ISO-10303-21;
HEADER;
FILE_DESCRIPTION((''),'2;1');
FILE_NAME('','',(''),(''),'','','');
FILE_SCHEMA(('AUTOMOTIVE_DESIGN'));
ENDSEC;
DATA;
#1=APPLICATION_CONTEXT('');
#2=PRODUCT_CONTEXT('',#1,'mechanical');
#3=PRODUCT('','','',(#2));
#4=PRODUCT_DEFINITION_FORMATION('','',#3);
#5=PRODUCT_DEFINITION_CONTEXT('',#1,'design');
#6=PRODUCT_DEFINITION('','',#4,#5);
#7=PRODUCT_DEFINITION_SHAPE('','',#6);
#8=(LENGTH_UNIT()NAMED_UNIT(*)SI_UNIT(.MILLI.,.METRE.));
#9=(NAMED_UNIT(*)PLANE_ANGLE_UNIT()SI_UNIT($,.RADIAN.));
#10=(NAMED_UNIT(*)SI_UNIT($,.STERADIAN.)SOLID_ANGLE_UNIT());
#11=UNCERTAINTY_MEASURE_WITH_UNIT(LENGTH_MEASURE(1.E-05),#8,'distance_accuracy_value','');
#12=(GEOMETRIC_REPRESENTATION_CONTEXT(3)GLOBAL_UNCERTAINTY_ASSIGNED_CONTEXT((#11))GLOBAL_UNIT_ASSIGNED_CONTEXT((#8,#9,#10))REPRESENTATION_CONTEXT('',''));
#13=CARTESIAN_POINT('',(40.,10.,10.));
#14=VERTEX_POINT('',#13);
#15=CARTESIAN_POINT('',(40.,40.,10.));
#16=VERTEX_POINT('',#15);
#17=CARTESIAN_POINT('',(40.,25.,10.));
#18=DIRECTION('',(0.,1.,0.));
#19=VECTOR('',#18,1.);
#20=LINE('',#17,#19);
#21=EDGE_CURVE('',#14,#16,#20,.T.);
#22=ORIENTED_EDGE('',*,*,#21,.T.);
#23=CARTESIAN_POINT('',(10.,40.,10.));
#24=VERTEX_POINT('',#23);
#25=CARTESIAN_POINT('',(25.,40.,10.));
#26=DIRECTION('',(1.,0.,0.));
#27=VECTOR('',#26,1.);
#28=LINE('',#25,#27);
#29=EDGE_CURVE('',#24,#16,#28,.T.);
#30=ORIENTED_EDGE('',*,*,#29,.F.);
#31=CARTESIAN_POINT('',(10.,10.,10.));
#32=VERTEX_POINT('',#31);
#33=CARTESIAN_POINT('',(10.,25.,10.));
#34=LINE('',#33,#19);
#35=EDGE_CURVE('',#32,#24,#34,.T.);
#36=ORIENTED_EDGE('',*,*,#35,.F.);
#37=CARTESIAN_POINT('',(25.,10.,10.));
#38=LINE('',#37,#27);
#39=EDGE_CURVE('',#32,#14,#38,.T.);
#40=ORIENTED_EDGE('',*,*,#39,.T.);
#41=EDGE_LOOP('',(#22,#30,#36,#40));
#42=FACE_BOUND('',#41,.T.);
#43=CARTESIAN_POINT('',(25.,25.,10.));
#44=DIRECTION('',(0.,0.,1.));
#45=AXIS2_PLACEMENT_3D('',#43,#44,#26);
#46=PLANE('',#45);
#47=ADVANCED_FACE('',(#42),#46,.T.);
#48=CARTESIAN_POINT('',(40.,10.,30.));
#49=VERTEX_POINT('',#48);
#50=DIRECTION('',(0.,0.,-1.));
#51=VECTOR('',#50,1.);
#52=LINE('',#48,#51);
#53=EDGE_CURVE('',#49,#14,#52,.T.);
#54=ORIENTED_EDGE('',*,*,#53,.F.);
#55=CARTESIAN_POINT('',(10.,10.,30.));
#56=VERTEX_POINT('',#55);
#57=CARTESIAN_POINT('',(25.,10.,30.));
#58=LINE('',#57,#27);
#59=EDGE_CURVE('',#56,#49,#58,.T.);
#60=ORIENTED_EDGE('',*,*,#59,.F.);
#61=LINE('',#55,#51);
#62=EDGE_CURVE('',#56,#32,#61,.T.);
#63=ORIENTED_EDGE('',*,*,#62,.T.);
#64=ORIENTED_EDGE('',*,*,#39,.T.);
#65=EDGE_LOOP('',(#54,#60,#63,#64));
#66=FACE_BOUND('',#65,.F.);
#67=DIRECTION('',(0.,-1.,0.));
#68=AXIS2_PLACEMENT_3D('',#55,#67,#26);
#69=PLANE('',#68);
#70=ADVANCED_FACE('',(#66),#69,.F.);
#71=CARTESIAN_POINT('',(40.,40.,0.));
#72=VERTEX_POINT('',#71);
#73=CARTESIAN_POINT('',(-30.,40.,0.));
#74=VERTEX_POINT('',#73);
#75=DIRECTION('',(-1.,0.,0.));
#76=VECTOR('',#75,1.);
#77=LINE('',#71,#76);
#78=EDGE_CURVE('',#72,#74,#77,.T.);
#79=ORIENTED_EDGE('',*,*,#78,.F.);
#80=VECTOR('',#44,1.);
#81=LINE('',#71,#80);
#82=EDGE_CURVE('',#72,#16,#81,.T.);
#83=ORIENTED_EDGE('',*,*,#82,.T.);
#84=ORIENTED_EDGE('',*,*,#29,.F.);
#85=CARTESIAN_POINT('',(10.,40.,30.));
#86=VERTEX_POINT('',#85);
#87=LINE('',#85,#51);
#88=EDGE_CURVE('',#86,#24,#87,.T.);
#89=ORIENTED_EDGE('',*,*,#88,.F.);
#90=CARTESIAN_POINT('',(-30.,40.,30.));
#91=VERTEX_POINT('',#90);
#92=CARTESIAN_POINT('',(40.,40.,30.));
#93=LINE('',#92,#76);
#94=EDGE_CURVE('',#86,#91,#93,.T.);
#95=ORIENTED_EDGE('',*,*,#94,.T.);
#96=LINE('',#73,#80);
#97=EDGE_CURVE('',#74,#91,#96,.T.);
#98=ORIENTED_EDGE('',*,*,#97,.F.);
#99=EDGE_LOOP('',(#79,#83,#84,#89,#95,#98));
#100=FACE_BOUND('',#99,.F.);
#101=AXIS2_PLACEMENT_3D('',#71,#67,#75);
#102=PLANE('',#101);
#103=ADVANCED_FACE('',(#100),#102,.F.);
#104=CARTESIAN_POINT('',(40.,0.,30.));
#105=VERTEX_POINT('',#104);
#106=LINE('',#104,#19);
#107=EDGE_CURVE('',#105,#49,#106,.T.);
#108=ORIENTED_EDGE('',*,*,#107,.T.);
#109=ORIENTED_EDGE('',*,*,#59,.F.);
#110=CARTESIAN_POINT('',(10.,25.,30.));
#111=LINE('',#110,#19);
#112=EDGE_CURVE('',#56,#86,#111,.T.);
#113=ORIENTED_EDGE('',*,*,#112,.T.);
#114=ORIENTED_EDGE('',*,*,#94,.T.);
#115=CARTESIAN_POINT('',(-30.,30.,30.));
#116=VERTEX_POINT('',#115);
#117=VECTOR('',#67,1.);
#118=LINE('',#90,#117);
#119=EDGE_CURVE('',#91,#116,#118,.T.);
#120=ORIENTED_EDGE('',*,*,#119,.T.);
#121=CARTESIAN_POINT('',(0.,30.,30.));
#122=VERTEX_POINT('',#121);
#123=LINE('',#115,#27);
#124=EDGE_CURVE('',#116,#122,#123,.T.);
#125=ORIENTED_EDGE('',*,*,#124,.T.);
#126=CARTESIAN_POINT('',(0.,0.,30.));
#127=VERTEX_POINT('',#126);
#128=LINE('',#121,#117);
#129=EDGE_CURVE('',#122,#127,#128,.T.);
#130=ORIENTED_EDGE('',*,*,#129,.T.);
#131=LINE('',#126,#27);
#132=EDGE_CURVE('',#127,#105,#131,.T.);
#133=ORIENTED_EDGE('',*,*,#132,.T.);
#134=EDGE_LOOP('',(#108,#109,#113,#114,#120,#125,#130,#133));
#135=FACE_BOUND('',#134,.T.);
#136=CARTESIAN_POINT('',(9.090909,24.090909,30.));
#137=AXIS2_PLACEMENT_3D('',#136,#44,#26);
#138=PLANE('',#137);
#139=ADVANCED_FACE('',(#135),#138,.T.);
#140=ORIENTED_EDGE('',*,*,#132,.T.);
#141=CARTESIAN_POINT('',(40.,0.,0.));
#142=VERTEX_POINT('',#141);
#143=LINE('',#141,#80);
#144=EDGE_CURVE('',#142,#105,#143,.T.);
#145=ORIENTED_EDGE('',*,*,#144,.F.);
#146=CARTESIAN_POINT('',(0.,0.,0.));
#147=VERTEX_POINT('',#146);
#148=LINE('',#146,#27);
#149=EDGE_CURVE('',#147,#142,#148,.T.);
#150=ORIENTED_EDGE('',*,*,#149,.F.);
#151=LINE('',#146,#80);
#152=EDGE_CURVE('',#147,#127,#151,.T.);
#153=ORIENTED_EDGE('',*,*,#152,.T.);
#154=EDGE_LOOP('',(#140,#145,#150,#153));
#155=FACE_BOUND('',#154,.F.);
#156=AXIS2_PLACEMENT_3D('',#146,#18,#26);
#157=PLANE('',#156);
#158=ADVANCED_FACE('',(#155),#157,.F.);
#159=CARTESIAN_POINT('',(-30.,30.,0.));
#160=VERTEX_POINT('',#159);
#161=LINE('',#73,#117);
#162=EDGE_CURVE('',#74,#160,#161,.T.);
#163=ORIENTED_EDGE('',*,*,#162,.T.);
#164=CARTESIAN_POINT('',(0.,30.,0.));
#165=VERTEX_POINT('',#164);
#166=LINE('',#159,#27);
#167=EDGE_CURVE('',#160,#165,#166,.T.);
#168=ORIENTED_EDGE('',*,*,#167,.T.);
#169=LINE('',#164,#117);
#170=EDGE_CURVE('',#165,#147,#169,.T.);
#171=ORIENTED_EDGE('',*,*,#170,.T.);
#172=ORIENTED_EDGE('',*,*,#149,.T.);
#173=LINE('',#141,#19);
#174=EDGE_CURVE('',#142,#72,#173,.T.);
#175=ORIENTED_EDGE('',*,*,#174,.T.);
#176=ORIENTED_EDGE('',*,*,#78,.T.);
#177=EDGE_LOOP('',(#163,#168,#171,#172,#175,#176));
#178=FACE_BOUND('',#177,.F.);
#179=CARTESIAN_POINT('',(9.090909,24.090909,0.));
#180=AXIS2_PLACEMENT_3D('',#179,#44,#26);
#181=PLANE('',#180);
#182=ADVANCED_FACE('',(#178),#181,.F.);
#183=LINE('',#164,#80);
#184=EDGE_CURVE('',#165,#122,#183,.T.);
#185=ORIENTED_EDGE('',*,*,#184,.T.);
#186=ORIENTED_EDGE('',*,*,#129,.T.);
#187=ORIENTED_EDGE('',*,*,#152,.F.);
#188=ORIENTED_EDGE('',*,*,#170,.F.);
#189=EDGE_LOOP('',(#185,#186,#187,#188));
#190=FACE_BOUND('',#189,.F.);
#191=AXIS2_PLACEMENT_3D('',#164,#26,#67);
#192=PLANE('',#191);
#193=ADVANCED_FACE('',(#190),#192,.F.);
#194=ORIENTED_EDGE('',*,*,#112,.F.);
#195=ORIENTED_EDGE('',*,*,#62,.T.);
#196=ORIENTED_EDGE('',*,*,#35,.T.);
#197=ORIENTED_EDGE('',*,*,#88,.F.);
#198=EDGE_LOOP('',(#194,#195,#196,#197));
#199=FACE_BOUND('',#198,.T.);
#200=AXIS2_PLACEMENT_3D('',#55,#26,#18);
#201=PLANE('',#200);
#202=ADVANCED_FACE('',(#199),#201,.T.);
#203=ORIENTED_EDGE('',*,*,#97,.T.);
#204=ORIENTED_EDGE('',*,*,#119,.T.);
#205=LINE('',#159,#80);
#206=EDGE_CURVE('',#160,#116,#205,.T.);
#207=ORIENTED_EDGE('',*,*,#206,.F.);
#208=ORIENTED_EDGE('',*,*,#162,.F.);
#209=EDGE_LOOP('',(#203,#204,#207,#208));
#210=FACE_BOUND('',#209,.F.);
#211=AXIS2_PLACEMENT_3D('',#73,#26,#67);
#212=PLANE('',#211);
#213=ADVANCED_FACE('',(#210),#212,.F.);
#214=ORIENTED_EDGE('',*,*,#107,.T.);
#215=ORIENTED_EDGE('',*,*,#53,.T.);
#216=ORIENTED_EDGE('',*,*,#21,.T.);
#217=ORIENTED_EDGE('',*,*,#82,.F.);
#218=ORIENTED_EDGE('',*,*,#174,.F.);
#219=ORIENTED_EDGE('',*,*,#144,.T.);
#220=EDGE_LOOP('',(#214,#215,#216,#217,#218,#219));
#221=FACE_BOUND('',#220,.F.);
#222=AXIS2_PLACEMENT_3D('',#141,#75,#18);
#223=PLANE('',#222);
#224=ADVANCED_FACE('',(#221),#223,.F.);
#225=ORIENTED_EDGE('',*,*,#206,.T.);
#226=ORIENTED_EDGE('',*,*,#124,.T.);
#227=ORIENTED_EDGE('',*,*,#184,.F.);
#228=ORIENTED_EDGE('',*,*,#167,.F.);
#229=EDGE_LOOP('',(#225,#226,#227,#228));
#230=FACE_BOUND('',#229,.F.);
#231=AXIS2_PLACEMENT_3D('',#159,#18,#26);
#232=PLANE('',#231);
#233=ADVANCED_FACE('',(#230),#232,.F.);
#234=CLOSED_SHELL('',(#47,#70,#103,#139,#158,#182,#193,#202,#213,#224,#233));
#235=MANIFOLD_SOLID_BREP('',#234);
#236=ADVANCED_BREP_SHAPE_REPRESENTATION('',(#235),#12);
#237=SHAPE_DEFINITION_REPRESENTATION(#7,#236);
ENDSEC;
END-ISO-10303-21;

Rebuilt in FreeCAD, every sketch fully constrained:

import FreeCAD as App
import Part
import Sketcher
Q = App.Units.Quantity


def add_polygon(sketch, points):
    """Adds a closed chain of lines whose ends are joined by coincident constraints."""
    first, n = sketch.GeometryCount, len(points)
    for a, b in zip(points, points[1:] + points[:1]):
        sketch.addGeometry(Part.LineSegment(App.Vector(*a, 0), App.Vector(*b, 0)), False)
    for i in range(n):
        sketch.addConstraint(Sketcher.Constraint("Coincident", first + i, 2, first + (i + 1) % n, 1))

doc = App.newDocument("Part")
body = doc.addObject("PartDesign::Body", "Body")

sketch1 = body.newObject("Sketcher::SketchObject", "Sketch")
sketch1.AttachmentSupport = (doc.getObject("XY_Plane"), [""])
sketch1.MapMode = "FlatFace"
add_polygon(sketch1, [(0, 30), (0, 0), (40, 0), (40, 40), (-30, 40), (-30, 30)])
sketch1.addConstraint([
    Sketcher.Constraint("Vertical", 0),
    Sketcher.Constraint("Horizontal", 1),
    Sketcher.Constraint("Vertical", 2),
    Sketcher.Constraint("Horizontal", 3),
    Sketcher.Constraint("Vertical", 4),
    Sketcher.Constraint("Horizontal", 5),
    Sketcher.Constraint("Coincident", 0, 2, -1, 1),
    Sketcher.Constraint("Equal", 5, 0),
    Sketcher.Constraint("Equal", 1, 2),
    Sketcher.Constraint("DistanceX", 1, 1, 1, 2, Q("40 mm")),
    Sketcher.Constraint("DistanceX", 3, 2, 3, 1, Q("70 mm")),
])
pad1 = body.newObject("PartDesign::Pad", "Pad")
pad1.Profile = sketch1
pad1.Length = 30

sketch2 = body.newObject("Sketcher::SketchObject", "Sketch001")
sketch2.AttachmentSupport = (doc.getObject("XY_Plane"), [""])
sketch2.MapMode = "FlatFace"
sketch2.AttachmentOffset = App.Placement(App.Vector(0, 0, 30), App.Rotation())
add_polygon(sketch2, [(10, 40), (10, 10), (40, 10), (40, 40)])
sketch2.addConstraint([
    Sketcher.Constraint("Vertical", 0),
    Sketcher.Constraint("Horizontal", 1),
    Sketcher.Constraint("Vertical", 2),
    Sketcher.Constraint("Horizontal", 3),
    Sketcher.Constraint("Equal", 3, 0),
    Sketcher.Constraint("DistanceX", 1, 1, 1, 2, Q("30 mm")),
    Sketcher.Constraint("DistanceX", -1, 1, 0, 2, Q("10 mm")),
    Sketcher.Constraint("DistanceY", -1, 1, 0, 2, Q("10 mm")),
])
pocket1 = body.newObject("PartDesign::Pocket", "Pocket")
pocket1.Profile = sketch2
pocket1.Length = 20

doc.recompute()
